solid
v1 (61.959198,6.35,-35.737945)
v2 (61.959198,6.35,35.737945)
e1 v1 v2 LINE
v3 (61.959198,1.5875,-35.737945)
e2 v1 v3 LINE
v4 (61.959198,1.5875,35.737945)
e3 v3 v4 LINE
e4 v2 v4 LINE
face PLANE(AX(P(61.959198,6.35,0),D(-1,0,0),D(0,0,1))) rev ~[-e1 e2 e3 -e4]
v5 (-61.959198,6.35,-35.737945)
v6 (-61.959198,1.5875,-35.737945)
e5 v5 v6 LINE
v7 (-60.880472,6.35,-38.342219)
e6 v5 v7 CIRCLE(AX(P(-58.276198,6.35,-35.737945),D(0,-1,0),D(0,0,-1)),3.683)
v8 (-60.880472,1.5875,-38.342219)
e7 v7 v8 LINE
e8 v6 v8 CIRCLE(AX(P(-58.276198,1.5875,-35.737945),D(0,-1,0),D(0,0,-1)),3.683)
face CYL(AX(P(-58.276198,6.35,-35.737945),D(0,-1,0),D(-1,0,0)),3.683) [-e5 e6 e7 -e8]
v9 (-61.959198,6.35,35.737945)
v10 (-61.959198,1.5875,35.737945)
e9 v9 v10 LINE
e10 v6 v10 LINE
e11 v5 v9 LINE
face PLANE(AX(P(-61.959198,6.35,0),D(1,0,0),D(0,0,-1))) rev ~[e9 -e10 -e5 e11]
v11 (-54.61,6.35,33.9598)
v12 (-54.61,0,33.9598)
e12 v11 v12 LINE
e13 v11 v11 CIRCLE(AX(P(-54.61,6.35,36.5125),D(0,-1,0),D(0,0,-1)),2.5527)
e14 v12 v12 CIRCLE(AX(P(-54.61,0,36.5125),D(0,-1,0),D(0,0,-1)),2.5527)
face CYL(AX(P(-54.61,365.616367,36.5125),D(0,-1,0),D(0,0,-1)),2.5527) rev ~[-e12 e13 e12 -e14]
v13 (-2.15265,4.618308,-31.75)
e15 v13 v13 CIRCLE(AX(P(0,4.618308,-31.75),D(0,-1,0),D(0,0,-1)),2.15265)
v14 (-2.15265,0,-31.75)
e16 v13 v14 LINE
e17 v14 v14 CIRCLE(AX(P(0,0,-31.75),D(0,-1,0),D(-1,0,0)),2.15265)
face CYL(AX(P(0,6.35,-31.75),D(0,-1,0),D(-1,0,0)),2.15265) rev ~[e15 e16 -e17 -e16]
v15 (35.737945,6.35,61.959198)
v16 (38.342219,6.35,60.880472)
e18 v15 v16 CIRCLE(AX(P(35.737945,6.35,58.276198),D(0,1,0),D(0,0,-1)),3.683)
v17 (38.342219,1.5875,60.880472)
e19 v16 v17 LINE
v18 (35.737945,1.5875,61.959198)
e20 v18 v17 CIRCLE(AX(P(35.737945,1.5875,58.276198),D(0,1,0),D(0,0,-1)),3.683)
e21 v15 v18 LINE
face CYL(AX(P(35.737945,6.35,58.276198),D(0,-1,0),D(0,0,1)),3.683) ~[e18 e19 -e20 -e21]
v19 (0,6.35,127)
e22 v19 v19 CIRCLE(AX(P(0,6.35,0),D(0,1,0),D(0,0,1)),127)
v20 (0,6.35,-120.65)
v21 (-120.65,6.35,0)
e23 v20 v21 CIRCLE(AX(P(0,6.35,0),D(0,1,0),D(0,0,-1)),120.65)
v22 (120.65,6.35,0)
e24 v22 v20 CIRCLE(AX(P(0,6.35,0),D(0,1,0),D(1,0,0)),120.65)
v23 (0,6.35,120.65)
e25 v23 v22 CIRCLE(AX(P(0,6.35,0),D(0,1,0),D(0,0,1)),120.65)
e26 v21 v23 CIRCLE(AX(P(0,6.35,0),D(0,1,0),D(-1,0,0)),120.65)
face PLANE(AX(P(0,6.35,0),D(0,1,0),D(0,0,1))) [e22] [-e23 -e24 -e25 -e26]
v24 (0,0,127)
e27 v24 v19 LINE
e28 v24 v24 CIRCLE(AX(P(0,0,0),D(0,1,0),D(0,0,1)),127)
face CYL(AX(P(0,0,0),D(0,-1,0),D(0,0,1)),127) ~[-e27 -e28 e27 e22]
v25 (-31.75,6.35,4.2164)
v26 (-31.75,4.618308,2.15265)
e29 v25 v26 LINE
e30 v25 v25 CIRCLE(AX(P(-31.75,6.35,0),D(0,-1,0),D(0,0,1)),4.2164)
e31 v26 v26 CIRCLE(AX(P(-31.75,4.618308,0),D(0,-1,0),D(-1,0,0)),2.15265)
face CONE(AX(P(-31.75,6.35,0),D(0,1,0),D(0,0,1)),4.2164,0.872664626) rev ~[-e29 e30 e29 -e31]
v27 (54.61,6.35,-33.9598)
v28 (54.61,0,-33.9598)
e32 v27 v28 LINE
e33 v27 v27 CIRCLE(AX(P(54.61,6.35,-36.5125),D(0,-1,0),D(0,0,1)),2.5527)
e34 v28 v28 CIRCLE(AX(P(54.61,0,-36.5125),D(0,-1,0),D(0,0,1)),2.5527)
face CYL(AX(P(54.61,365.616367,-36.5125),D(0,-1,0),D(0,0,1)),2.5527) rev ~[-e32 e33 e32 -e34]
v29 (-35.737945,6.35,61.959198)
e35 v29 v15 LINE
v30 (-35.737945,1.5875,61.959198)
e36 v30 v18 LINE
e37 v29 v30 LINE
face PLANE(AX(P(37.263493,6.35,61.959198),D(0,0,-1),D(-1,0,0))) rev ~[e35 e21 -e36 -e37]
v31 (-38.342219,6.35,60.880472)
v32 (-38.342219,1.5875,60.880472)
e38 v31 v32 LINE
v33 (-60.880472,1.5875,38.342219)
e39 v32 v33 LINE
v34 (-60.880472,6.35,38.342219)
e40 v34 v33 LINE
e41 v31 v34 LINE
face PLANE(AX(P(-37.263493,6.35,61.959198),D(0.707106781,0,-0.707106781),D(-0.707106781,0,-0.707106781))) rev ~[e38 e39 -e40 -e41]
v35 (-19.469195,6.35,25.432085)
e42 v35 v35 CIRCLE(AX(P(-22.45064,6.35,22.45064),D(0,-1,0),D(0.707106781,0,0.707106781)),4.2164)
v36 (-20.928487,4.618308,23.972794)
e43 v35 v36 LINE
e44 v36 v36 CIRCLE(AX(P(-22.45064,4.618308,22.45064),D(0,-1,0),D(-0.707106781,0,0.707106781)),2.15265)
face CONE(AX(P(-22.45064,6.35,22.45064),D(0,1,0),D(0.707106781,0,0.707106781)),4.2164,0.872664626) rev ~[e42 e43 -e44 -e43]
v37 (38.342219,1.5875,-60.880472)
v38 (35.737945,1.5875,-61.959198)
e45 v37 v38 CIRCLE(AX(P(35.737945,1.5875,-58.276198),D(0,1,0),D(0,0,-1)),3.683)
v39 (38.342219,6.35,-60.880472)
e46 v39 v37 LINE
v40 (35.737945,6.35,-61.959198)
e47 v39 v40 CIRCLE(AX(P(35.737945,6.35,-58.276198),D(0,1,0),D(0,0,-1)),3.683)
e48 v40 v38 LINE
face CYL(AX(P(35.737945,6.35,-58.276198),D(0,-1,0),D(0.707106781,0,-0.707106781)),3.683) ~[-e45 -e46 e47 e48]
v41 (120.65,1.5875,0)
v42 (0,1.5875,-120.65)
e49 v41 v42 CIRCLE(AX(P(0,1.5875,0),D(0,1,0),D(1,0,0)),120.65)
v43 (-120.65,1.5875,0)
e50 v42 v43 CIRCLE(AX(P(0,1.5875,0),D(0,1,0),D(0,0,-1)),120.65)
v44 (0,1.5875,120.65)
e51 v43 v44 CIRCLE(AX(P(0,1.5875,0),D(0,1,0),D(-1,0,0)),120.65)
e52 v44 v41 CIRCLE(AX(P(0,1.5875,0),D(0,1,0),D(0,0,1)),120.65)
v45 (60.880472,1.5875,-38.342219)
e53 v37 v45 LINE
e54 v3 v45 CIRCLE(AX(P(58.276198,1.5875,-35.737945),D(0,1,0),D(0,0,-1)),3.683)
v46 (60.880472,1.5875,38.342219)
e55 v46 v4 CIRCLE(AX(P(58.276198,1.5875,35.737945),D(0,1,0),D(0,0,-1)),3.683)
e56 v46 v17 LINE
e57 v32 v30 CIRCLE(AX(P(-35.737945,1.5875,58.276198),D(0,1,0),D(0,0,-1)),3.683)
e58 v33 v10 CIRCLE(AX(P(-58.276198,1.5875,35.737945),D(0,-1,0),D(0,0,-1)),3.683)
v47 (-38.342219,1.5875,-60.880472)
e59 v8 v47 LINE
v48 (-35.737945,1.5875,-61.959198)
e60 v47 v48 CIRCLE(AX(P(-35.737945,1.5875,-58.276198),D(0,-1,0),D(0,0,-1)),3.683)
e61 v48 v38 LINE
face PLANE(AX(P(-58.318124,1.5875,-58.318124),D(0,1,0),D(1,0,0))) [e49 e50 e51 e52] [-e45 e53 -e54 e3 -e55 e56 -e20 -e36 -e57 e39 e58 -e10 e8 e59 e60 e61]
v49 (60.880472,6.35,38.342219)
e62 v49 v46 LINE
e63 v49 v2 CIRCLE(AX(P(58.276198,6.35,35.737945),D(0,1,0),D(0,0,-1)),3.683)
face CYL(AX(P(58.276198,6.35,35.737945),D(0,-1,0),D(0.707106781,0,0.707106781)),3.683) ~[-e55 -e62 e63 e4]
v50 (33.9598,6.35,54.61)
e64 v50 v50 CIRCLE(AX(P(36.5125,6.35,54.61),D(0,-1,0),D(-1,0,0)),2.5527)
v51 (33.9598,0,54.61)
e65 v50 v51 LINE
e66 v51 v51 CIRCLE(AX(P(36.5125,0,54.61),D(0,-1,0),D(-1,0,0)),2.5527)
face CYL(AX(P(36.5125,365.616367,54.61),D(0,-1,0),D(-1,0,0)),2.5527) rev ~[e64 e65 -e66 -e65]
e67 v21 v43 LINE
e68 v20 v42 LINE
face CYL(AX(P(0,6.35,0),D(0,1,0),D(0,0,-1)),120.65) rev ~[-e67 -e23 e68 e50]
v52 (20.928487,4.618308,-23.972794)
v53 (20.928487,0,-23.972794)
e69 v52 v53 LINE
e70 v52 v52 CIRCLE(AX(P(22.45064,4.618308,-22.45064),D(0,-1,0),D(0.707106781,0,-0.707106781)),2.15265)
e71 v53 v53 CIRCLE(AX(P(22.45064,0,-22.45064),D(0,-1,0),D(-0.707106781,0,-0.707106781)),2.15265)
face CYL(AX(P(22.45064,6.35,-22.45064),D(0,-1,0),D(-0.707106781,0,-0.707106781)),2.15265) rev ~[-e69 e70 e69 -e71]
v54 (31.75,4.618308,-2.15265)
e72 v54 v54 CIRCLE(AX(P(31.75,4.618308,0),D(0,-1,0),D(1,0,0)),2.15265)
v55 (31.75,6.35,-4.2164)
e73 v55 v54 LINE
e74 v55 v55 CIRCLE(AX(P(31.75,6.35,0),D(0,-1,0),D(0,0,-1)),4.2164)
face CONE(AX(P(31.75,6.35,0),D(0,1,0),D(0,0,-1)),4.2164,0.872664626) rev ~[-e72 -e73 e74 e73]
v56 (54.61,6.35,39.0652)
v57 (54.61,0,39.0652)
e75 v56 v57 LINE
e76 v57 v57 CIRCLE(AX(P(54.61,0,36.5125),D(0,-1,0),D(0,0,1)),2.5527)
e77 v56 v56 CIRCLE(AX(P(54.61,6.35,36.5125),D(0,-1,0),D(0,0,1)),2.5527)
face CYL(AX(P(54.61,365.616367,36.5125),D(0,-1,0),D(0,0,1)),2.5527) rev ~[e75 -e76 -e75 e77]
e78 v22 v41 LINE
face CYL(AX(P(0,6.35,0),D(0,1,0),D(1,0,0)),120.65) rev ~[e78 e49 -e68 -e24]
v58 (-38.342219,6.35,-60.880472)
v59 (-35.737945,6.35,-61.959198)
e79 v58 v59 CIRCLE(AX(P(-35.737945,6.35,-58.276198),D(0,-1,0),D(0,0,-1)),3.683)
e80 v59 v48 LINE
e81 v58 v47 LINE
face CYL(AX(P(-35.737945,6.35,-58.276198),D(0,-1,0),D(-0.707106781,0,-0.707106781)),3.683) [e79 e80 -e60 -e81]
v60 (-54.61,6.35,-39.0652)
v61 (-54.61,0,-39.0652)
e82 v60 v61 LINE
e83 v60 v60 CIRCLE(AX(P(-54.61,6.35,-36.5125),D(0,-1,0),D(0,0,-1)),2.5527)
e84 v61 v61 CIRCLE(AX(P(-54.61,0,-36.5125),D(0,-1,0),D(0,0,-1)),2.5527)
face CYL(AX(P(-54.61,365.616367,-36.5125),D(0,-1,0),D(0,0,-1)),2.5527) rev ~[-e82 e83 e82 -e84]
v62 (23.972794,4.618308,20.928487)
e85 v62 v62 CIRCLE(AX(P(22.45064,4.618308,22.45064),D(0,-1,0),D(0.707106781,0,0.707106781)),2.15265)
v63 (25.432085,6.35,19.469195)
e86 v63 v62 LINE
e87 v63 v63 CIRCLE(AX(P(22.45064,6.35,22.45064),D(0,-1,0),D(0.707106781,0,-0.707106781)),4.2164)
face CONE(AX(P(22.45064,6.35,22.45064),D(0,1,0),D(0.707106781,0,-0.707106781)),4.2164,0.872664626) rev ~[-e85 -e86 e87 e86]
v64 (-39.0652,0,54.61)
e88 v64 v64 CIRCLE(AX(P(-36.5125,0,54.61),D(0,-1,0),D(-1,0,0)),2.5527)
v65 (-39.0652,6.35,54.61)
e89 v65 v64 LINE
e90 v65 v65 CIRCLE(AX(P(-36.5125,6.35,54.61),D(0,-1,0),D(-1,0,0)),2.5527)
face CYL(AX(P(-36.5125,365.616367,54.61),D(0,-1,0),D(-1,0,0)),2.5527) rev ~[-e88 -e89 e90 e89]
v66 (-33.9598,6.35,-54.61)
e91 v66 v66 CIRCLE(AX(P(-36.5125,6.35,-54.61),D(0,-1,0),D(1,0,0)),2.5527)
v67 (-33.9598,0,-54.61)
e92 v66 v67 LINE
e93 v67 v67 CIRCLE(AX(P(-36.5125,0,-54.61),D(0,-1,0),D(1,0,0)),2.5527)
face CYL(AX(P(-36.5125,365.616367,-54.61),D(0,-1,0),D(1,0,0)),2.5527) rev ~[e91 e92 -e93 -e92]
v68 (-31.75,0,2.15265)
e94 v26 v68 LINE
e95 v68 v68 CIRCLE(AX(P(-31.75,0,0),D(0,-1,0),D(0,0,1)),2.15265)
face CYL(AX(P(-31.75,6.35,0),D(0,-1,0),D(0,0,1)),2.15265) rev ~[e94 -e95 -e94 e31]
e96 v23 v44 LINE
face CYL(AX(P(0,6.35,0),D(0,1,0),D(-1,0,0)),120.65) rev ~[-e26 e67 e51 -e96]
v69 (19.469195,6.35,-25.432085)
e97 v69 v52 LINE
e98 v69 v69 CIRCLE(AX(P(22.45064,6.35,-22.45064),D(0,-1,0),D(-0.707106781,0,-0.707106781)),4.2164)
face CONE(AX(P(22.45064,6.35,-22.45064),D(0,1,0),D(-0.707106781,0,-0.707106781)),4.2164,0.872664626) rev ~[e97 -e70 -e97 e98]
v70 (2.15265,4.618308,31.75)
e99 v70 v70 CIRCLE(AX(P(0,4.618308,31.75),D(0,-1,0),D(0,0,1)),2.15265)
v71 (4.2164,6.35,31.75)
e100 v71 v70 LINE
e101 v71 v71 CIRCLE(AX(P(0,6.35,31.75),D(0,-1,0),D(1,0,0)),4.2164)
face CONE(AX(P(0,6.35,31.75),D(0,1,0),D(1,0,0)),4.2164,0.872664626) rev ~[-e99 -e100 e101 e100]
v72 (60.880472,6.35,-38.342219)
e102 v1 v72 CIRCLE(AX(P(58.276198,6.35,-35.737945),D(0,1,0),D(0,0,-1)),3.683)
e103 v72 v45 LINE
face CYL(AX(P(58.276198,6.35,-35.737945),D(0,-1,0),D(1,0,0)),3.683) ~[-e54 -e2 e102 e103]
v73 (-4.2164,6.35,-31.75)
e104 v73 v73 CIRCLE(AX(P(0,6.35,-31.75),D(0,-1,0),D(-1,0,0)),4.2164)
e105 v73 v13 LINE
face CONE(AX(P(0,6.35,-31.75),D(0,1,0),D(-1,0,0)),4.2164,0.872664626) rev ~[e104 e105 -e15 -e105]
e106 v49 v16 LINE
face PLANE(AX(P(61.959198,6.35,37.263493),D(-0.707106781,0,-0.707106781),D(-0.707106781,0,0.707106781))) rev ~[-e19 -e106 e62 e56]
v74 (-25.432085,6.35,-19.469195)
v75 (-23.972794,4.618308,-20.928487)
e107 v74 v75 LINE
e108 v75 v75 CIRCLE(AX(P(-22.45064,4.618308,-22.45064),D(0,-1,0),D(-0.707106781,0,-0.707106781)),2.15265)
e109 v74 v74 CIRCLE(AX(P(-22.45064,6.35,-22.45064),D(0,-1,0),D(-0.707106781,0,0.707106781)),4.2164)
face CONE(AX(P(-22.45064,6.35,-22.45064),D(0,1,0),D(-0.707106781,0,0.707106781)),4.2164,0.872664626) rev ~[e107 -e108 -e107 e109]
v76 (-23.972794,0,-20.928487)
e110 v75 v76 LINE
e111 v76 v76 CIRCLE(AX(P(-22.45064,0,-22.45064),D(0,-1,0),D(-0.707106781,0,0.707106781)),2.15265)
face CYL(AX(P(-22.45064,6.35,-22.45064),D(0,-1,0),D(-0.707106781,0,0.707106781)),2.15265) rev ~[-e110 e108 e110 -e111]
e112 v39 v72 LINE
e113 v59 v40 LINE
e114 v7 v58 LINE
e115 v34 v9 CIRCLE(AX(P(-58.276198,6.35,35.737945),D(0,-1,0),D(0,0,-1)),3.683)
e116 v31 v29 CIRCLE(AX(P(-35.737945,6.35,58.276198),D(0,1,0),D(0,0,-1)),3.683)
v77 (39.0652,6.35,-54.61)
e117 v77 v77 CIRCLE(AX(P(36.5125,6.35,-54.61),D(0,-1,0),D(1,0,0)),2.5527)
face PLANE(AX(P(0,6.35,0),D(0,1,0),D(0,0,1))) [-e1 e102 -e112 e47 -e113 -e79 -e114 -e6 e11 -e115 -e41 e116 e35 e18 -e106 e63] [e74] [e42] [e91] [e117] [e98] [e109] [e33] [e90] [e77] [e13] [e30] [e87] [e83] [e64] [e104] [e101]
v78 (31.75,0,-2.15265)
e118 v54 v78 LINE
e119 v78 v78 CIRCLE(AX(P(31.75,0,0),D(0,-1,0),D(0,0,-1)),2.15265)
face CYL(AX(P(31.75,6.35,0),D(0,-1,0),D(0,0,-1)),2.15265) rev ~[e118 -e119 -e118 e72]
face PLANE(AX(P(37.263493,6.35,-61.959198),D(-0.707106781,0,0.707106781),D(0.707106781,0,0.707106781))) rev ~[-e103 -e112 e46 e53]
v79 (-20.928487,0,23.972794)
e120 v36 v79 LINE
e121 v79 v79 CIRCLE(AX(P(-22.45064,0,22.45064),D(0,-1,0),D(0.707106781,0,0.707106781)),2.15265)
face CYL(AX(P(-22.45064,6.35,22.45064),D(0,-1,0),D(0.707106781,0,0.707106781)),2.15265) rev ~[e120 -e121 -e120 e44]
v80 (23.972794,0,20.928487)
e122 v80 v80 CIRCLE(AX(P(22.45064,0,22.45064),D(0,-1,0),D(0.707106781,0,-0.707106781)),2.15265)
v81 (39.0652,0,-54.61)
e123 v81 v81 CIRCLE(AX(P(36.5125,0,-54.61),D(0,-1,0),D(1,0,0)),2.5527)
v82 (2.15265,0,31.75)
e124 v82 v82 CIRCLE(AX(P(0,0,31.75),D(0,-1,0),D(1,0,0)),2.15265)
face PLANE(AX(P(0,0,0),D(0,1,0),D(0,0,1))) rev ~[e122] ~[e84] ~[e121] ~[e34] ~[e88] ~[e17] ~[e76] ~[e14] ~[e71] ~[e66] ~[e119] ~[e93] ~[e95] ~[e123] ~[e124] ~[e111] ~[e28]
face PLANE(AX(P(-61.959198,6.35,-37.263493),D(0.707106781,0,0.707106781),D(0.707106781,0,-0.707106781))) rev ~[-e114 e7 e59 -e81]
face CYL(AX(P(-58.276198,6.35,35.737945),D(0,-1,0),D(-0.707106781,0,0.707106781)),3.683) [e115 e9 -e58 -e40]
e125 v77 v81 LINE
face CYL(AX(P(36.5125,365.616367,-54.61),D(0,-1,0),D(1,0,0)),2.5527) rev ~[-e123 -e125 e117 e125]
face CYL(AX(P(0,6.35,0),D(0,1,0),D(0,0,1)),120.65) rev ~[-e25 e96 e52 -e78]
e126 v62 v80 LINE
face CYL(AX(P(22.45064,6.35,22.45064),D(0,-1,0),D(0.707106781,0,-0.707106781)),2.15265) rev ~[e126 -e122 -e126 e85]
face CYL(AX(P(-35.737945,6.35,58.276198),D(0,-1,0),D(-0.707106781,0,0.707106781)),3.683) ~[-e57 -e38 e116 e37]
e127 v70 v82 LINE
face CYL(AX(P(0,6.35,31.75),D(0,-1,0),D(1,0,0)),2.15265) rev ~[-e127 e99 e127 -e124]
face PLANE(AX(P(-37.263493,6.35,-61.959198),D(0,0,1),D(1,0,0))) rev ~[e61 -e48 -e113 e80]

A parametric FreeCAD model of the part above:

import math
import FreeCAD as App
import Part
import Sketcher

V = App.Vector
Q = App.Units.Quantity


def edges_at(feature, points):
    """Names of the edges that pass closest to the given points."""
    edges = feature.Shape.Edges
    near = lambda p: min(range(len(edges)), key=lambda i: edges[i].distToShape(Part.Vertex(*p))[0])
    return sorted({f"Edge{near(p) + 1}" for p in points})

doc = App.newDocument("Part")
body = doc.addObject("PartDesign::Body", "Body")

sketch1 = body.newObject("Sketcher::SketchObject", "Sketch")
sketch1.AttachmentSupport = (doc.getObject("XZ_Plane"), [""])
sketch1.MapMode = "FlatFace"
sketch1.addGeometry(Part.Circle(V(0, 0, 0), V(0, 0, 1), 127), False)
sketch1.addConstraint(Sketcher.Constraint("Coincident", 0, 3, -1, 1))
sketch1.addConstraint(Sketcher.Constraint("Diameter", 0, Q("10 in")))
pad1 = body.newObject("PartDesign::Pad", "Pad")
pad1.Profile = sketch1
pad1.Length = Q("0.25 in")
pad1.Reversed = True

sketch2 = body.newObject("Sketcher::SketchObject", "Sketch001")
sketch2.AttachmentSupport = (doc.getObject("XZ_Plane"), [""])
sketch2.MapMode = "FlatFace"
sketch2.AttachmentOffset = App.Placement(V(0, 0, -0.25 * 25.4), App.Rotation())
sketch2.addGeometry(Part.Circle(V(-36.5125, -54.61, 0), V(0, 0, 1), 2.5527), False)
sketch2.addGeometry(Part.Circle(V(36.5125, -54.61, 0), V(0, 0, 1), 2.5527), False)
sketch2.addConstraint(Sketcher.Constraint("Equal", 0, 1))
sketch2.addConstraint(Sketcher.Constraint("Symmetric", 0, 3, 1, 3, -2))
sketch2.addConstraint(Sketcher.Constraint("Diameter", 0, Q("0.201 in")))
sketch2.addConstraint(Sketcher.Constraint("DistanceY", 0, 3, -1, 1, Q("2.15 in")))
sketch2.addConstraint(Sketcher.Constraint("DistanceX", 0, 3, -1, 1, Q("1.4375 in")))
doc.recompute()
hole = body.newObject("PartDesign::Hole", "Hole")
hole.Profile = sketch2
hole.ThreadType = "None"
hole.Diameter = Q("0.201 in")
hole.DepthType = "ThroughAll"
hole.Reversed = True
doc.recompute()

polarpattern = body.newObject("PartDesign::PolarPattern", "PolarPattern")
polarpattern.Originals = [hole]
polarpattern.Axis = (doc.getObject("Y_Axis"), [""])
polarpattern.Angle = 360
polarpattern.Occurrences = 4
body.Tip = polarpattern

sketch3 = body.newObject("Sketcher::SketchObject", "Sketch002")
sketch3.AttachmentSupport = (doc.getObject("XZ_Plane"), [""])
sketch3.MapMode = "FlatFace"
sketch3.AttachmentOffset = App.Placement(V(0, 0, -0.25 * 25.4), App.Rotation())
sketch3.addGeometry(Part.Circle(V(0, 31.75, 0), V(0, 0, 1), 2.15265), False)
sketch3.addConstraint(Sketcher.Constraint("PointOnObject", 0, 3, -2))
sketch3.addConstraint(Sketcher.Constraint("Diameter", 0, Q("0.1695 in")))
sketch3.addConstraint(Sketcher.Constraint("DistanceY", -1, 1, 0, 3, Q("1.25 in")))
doc.recompute()
hole2 = body.newObject("PartDesign::Hole", "Hole001")
hole2.Profile = sketch3
hole2.ThreadType = "None"
hole2.Diameter = Q("0.1695 in")
hole2.DepthType = "ThroughAll"
hole2.HoleCutType = "Countersink"
hole2.HoleCutDiameter = Q("0.332 in")
hole2.HoleCutCountersinkAngle = 100
hole2.Reversed = True
doc.recompute()

polarpattern2 = body.newObject("PartDesign::PolarPattern", "PolarPattern001")
polarpattern2.Originals = [hole2]
polarpattern2.Axis = (doc.getObject("Y_Axis"), [""])
polarpattern2.Angle = 360
polarpattern2.Occurrences = 8
body.Tip = polarpattern2

sketch4 = body.newObject("Sketcher::SketchObject", "Sketch003")
sketch4.AttachmentSupport = (doc.getObject("XZ_Plane"), [""])
sketch4.MapMode = "FlatFace"
sketch4.AttachmentOffset = App.Placement(V(0, 0, -0.25 * 25.4), App.Rotation())
sketch4.addGeometry(Part.LineSegment(V(-61.959198, 0, 0), V(-61.959198, -37.263493, 0)), False)
sketch4.addGeometry(Part.LineSegment(V(-61.959198, -37.263493, 0), V(-37.263493, -61.959198, 0)), False)
sketch4.addGeometry(Part.LineSegment(V(-37.263493, -61.959198, 0), V(0, -61.959198, 0)), False)
sketch4.addGeometry(Part.LineSegment(V(0, -61.959198, 0), V(0, -120.65, 0)), False)
sketch4.addGeometry(Part.ArcOfCircle(Part.Circle(V(0, 0, 0), V(0, 0, 1), 120.65), math.radians(-180), math.radians(-90)), False)
sketch4.addGeometry(Part.LineSegment(V(-120.65, 0, 0), V(-61.959198, 0, 0)), False)
sketch4.addConstraint(Sketcher.Constraint("Coincident", 0, 2, 1, 1))
sketch4.addConstraint(Sketcher.Constraint("Coincident", 1, 2, 2, 1))
sketch4.addConstraint(Sketcher.Constraint("Coincident", 2, 2, 3, 1))
sketch4.addConstraint(Sketcher.Constraint("Coincident", 3, 2, 4, 2))
sketch4.addConstraint(Sketcher.Constraint("Coincident", 4, 1, 5, 1))
sketch4.addConstraint(Sketcher.Constraint("Coincident", 5, 2, 0, 1))
sketch4.addConstraint(Sketcher.Constraint("Vertical", 0))
sketch4.addConstraint(Sketcher.Constraint("Horizontal", 2))
sketch4.addConstraint(Sketcher.Constraint("Vertical", 3))
sketch4.addConstraint(Sketcher.Constraint("Horizontal", 5))
sketch4.addConstraint(Sketcher.Constraint("Coincident", 4, 3, -1, 1))
sketch4.addConstraint(Sketcher.Constraint("PointOnObject", 2, 2, -2))
sketch4.addConstraint(Sketcher.Constraint("PointOnObject", 4, 1, -1))
sketch4.addConstraint(Sketcher.Constraint("Equal", 2, 0))
sketch4.addConstraint(Sketcher.Constraint("Equal", 5, 3))
sketch4.addConstraint(Sketcher.Constraint("Radius", 4, Q("4.75 in")))
sketch4.addConstraint(Sketcher.Constraint("Distance", 1, Q("1.375 in")))
sketch4.addConstraint(Sketcher.Constraint("DistanceX", 2, 1, 2, 2, Q("37.263493 mm")))
pocket1 = body.newObject("PartDesign::Pocket", "Pocket")
pocket1.Profile = sketch4
pocket1.Length = Q("0.1875 in")
pocket1.Reversed = True
doc.recompute()

fillet = body.newObject("PartDesign::Fillet", "Fillet")
fillet.Base = (pocket1, edges_at(pocket1, [(-37.263, 3.969, -61.959), (-61.959, 3.969, -37.263)]))
fillet.Radius = Q("0.145 in")
doc.recompute()

polarpattern3 = body.newObject("PartDesign::PolarPattern", "PolarPattern002")
polarpattern3.Originals = [pocket1]
polarpattern3.Axis = (doc.getObject("Y_Axis"), [""])
polarpattern3.Angle = 360
polarpattern3.Occurrences = 4
body.Tip = polarpattern3
doc.recompute()

fillet2 = body.newObject("PartDesign::Fillet", "Fillet001")
fillet2.Base = (polarpattern3, edges_at(polarpattern3, [
    (-61.959, 3.969, 37.263),
    (-37.263, 3.969, 61.959),
    (37.263, 3.969, 61.959),
    (61.959, 3.969, 37.263),
    (61.959, 3.969, -37.263),
    (37.263, 3.969, -61.959),
]))
fillet2.Radius = Q("0.145 in")

doc.recompute()
